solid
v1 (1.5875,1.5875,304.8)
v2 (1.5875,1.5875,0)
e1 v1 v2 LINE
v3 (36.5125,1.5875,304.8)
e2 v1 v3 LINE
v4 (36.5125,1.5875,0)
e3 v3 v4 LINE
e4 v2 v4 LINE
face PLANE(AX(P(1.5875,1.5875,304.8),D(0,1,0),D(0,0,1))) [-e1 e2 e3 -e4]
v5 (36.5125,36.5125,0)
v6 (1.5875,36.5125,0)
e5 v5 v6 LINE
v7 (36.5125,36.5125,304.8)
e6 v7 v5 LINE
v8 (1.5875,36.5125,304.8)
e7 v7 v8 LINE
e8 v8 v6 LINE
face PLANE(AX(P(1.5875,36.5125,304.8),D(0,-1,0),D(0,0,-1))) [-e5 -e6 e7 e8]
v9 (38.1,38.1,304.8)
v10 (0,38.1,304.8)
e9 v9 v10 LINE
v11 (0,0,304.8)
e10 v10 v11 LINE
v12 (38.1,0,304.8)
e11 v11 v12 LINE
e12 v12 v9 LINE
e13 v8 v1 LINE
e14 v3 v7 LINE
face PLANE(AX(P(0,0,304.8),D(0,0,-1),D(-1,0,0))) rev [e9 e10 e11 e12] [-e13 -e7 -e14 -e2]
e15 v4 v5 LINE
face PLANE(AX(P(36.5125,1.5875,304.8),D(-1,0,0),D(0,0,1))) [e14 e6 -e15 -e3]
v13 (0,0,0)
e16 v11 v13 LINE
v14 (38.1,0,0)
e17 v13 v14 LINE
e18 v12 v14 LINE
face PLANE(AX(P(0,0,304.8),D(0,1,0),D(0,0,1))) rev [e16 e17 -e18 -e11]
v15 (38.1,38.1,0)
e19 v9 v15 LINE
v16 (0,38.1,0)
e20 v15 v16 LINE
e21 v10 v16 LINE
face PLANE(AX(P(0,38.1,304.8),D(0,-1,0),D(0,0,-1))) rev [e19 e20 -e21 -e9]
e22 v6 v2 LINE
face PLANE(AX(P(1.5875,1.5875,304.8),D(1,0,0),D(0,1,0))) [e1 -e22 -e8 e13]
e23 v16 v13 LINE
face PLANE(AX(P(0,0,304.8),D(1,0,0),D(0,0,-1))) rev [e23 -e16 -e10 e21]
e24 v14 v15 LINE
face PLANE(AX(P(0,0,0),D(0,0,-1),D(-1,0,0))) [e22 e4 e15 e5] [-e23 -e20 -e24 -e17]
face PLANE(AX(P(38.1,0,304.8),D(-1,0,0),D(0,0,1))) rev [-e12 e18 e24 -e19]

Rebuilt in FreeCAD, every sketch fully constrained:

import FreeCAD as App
import Part
import Sketcher

V = App.Vector
Q = App.Units.Quantity

doc = App.newDocument("Part")
params = doc.addObject("Spreadsheet::Sheet", "Params")
for row, (alias, value) in enumerate([
    ("sketch1_width", "1.5 in"),
    ("sketch1_width2", "1.375 in"),
    ("pad1_length", "12 in"),
], start=1):
    params.set(f"A{row}", alias)
    params.set(f"B{row}", "=" + value)
    params.setAlias(f"B{row}", alias)

body = doc.addObject("PartDesign::Body", "Body")

# Sketch on XY plane
sketch1 = body.newObject("Sketcher::SketchObject", "Sketch")
sketch1.AttachmentSupport = (doc.getObject("XY_Plane"), [""])
sketch1.MapMode = "FlatFace"
sketch1.addGeometry([
    Part.LineSegment(V(0, 38, 0), V(0, 0, 0)),  # 0
    Part.LineSegment(V(0, 0, 0), V(38, 0, 0)),  # 1
    Part.LineSegment(V(38, 0, 0), V(38, 38, 0)),  # 2
    Part.LineSegment(V(38, 38, 0), V(0, 38, 0)),  # 3
    Part.LineSegment(V(37, 2, 0), V(2, 2, 0)),  # 4
    Part.LineSegment(V(2, 2, 0), V(2, 37, 0)),  # 5
    Part.LineSegment(V(2, 37, 0), V(37, 37, 0)),  # 6
    Part.LineSegment(V(37, 37, 0), V(37, 2, 0)),  # 7
], False)
sketch1.addConstraint([
    Sketcher.Constraint("Coincident", 0, 2, 1, 1),
    Sketcher.Constraint("Coincident", 1, 2, 2, 1),
    Sketcher.Constraint("Coincident", 2, 2, 3, 1),
    Sketcher.Constraint("Coincident", 3, 2, 0, 1),
    Sketcher.Constraint("Coincident", 4, 2, 5, 1),
    Sketcher.Constraint("Coincident", 5, 2, 6, 1),
    Sketcher.Constraint("Coincident", 6, 2, 7, 1),
    Sketcher.Constraint("Coincident", 7, 2, 4, 1),
    Sketcher.Constraint("Vertical", 0),
    Sketcher.Constraint("Horizontal", 1),
    Sketcher.Constraint("Vertical", 2),
    Sketcher.Constraint("Horizontal", 3),
    Sketcher.Constraint("Horizontal", 4),
    Sketcher.Constraint("Vertical", 5),
    Sketcher.Constraint("Horizontal", 6),
    Sketcher.Constraint("Vertical", 7),
    Sketcher.Constraint("Coincident", 0, 2, -1, 1),
    Sketcher.Constraint("Equal", 3, 0),
    Sketcher.Constraint("Equal", 6, 5),
    Sketcher.Constraint("DistanceX", 1, 1, 1, 2, Q("1.5 in")),
    Sketcher.Constraint("DistanceX", 4, 2, 4, 1, Q("1.375 in")),
    Sketcher.Constraint("DistanceX", -1, 1, 4, 2, Q("0.0625 in")),
    Sketcher.Constraint("DistanceY", -1, 1, 4, 2, Q("0.0625 in")),
])
sketch1.setExpression("Constraints[19]", "Params.sketch1_width")
sketch1.setExpression("Constraints[20]", "Params.sketch1_width2")
pad1 = body.newObject("PartDesign::Pad", "Pad")
pad1.Profile = sketch1
pad1.setExpression("Length", "Params.pad1_length")

doc.recompute()
